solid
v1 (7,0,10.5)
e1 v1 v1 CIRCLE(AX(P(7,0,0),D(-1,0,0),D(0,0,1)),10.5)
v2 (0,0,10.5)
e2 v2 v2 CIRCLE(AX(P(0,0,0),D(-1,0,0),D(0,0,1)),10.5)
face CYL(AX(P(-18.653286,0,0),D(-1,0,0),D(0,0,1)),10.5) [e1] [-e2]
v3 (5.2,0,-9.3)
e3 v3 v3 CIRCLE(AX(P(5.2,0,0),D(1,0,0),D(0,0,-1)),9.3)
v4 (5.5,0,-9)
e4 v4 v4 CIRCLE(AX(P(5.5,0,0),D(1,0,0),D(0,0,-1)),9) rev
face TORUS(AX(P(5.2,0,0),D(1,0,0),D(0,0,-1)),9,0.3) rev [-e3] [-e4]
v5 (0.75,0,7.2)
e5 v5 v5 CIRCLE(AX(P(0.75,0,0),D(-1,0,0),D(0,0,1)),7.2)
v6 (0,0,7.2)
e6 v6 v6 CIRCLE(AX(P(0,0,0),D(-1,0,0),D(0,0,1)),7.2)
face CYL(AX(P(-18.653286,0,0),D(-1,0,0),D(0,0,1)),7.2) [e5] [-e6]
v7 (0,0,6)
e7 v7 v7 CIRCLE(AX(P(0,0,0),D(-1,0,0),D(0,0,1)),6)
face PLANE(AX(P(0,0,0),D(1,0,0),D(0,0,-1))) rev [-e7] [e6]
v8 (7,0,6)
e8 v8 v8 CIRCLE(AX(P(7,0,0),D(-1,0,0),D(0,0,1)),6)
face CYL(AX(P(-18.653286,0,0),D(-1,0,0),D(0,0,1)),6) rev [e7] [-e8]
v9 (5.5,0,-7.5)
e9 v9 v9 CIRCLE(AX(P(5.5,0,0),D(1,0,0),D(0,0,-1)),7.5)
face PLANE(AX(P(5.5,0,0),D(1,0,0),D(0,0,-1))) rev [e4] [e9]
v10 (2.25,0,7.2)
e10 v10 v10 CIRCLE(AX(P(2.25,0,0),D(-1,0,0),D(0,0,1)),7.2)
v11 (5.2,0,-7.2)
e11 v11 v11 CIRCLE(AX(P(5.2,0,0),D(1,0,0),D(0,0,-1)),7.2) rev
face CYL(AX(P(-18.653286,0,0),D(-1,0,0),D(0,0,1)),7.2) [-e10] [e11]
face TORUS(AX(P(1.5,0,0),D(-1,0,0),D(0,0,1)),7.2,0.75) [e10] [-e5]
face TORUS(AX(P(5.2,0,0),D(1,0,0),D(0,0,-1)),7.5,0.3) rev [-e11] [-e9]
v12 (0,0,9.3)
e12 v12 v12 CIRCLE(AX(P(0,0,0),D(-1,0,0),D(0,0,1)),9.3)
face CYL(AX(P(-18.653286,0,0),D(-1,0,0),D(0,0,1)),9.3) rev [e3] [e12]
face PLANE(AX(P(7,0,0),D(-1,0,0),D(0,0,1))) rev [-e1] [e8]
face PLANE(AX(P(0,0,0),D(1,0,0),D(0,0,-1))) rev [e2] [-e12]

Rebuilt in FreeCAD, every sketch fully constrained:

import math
import FreeCAD as App
import Part
import Sketcher

V = App.Vector


def edges_at(feature, points):
    """Names of the edges that pass closest to the given points."""
    edges = feature.Shape.Edges
    near = lambda p: min(range(len(edges)), key=lambda i: edges[i].distToShape(Part.Vertex(*p))[0])
    return sorted({f"Edge{near(p) + 1}" for p in points})

doc = App.newDocument("Part")
params = doc.addObject("Spreadsheet::Sheet", "Params")
for row, (alias, value) in enumerate([
    ("sketch1_width", "7 mm"),
    ("sketch1_radius", "0.75 mm"),
    ("sketch1_width2", "5.5 mm"),
    ("sketch1_height", "1.2 mm"),
    ("sketch1_height2", "4.5 mm"),
    ("revolution_angle", "360 deg"),
    ("fillet_radius", "0.3 mm"),
], start=1):
    params.set(f"A{row}", alias)
    params.set(f"B{row}", "=" + value)
    params.setAlias(f"B{row}", alias)

body = doc.addObject("PartDesign::Body", "Body")

# Sketch on XY plane
sketch1 = body.newObject("Sketcher::SketchObject", "Sketch")
sketch1.AttachmentSupport = (doc.getObject("XY_Plane"), [""])
sketch1.MapMode = "FlatFace"
sketch1.addGeometry([
    Part.ArcOfCircle(Part.Circle(V(1.5, 7.2, 0), V(0, 0, 1), 0.8), math.radians(0), math.radians(180)),  # 0
    Part.LineSegment(V(0.8, 7.2, 0), V(0, 7.2, 0)),  # 1
    Part.LineSegment(V(0, 7.2, 0), V(0, 6, 0)),  # 2
    Part.LineSegment(V(0, 6, 0), V(7, 6, 0)),  # 3
    Part.LineSegment(V(7, 6, 0), V(7, 10.5, 0)),  # 4
    Part.LineSegment(V(7, 10.5, 0), V(0, 10.5, 0)),  # 5
    Part.LineSegment(V(0, 10.5, 0), V(0, 9.3, 0)),  # 6
    Part.LineSegment(V(0, 9.3, 0), V(5.5, 9.3, 0)),  # 7
    Part.LineSegment(V(5.5, 9.3, 0), V(5.5, 7.2, 0)),  # 8
    Part.LineSegment(V(5.5, 7.2, 0), V(2.2, 7.2, 0)),  # 9
], False)
sketch1.addConstraint([
    Sketcher.Constraint("Coincident", 0, 2, 1, 1),
    Sketcher.Constraint("Coincident", 1, 2, 2, 1),
    Sketcher.Constraint("Coincident", 2, 2, 3, 1),
    Sketcher.Constraint("Coincident", 3, 2, 4, 1),
    Sketcher.Constraint("Coincident", 4, 2, 5, 1),
    Sketcher.Constraint("Coincident", 5, 2, 6, 1),
    Sketcher.Constraint("Coincident", 6, 2, 7, 1),
    Sketcher.Constraint("Coincident", 7, 2, 8, 1),
    Sketcher.Constraint("Coincident", 8, 2, 9, 1),
    Sketcher.Constraint("Coincident", 9, 2, 0, 1),
    Sketcher.Constraint("Horizontal", 1),
    Sketcher.Constraint("Vertical", 2),
    Sketcher.Constraint("Horizontal", 3),
    Sketcher.Constraint("Vertical", 4),
    Sketcher.Constraint("Horizontal", 5),
    Sketcher.Constraint("Vertical", 6),
    Sketcher.Constraint("Horizontal", 7),
    Sketcher.Constraint("Vertical", 8),
    Sketcher.Constraint("Horizontal", 9),
    Sketcher.Constraint("PointOnObject", 1, 2, -2),
    Sketcher.Constraint("PointOnObject", 5, 2, -2),
    Sketcher.Constraint("Horizontal", 1, 2, 8, 2),
    Sketcher.Constraint("Equal", 2, 6),
    Sketcher.Constraint("DistanceX", 3, 1, 3, 2, 7.0),
    Sketcher.Constraint("Radius", 0, 0.75),
    Sketcher.Constraint("DistanceX", 7, 1, 7, 2, 5.5),
    Sketcher.Constraint("DistanceY", 2, 2, 2, 1, 1.2),
    Sketcher.Constraint("DistanceY", 4, 1, 4, 2, 4.5),
    Sketcher.Constraint("DistanceY", -1, 1, 2, 2, 6.0),
    Sketcher.Constraint("DistanceX", 0, 3, 7, 2, 4.0),
    Sketcher.Constraint("DistanceY", -1, 1, 0, 3, 7.2),
])
sketch1.setExpression("Constraints[23]", "Params.sketch1_width")
sketch1.setExpression("Constraints[24]", "Params.sketch1_radius")
sketch1.setExpression("Constraints[25]", "Params.sketch1_width2")
sketch1.setExpression("Constraints[26]", "Params.sketch1_height")
sketch1.setExpression("Constraints[27]", "Params.sketch1_height2")
revolution = body.newObject("PartDesign::Revolution", "Revolution")
revolution.Profile = sketch1
revolution.ReferenceAxis = (sketch1, ["H_Axis"])
revolution.setExpression("Angle", "Params.revolution_angle")
doc.recompute()

fillet = body.newObject("PartDesign::Fillet", "Fillet")
fillet.Base = (revolution, edges_at(revolution, [(5.5, 0, -7.2), (5.5, 0, -9.3)]))
fillet.setExpression("Radius", "Params.fillet_radius")

doc.recompute()
